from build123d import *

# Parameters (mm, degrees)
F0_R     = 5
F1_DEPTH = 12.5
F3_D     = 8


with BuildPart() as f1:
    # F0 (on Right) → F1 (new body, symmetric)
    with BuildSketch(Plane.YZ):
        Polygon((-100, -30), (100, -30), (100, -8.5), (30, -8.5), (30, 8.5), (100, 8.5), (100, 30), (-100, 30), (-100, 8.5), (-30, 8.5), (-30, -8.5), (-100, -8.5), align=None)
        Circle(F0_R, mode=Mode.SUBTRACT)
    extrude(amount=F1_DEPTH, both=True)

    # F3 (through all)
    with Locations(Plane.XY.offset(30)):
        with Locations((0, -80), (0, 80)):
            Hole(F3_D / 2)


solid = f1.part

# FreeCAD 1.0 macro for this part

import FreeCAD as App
import Part
import Sketcher
from FreeCAD import Vector
Q = App.Units.Quantity


def add_polygon(sketch, points):
    """Adds a closed chain of lines whose ends are joined by coincident constraints."""
    first, n = sketch.GeometryCount, len(points)
    for a, b in zip(points, points[1:] + points[:1]):
        sketch.addGeometry(Part.LineSegment(App.Vector(*a, 0), App.Vector(*b, 0)), False)
    for i in range(n):
        sketch.addConstraint(Sketcher.Constraint("Coincident", first + i, 2, first + (i + 1) % n, 1))

doc = App.newDocument("Part")
params = doc.addObject("Spreadsheet::Sheet", "Params")
for row, (alias, value) in enumerate([
    ("sketch1_diameter", "10 mm"),
    ("sketch1_width", "200 mm"),
    ("sketch1_width2", "70 mm"),
    ("sketch1_height", "17 mm"),
    ("sketch1_height2", "21.5 mm"),
    ("pad1_length", "25 mm"),
    ("sketch2_diameter", "8 mm"),
    ("hole_diameter", "8 mm"),
], start=1):
    params.set(f"A{row}", alias)
    params.set(f"B{row}", "=" + value)
    params.setAlias(f"B{row}", alias)

body = doc.addObject("PartDesign::Body", "Body")

# Sketch on YZ plane
sketch1 = body.newObject("Sketcher::SketchObject", "Sketch")
sketch1.AttachmentSupport = (doc.getObject("YZ_Plane"), [""])
sketch1.MapMode = "FlatFace"
add_polygon(sketch1, [(-100, -30), (100, -30), (100, -8), (30, -8), (30, 8), (100, 8), (100, 30), (-100, 30), (-100, 8), (-30, 8), (-30, -8), (-100, -8)])  # lines 0-11
sketch1.addGeometry(Part.Circle(Vector(0, 0, 0), Vector(0, 0, 1), 5), False)  # 12
sketch1.addConstraint([
    Sketcher.Constraint("Horizontal", 0),
    Sketcher.Constraint("Vertical", 1),
    Sketcher.Constraint("Horizontal", 2),
    Sketcher.Constraint("Vertical", 3),
    Sketcher.Constraint("Horizontal", 4),
    Sketcher.Constraint("Vertical", 5),
    Sketcher.Constraint("Horizontal", 6),
    Sketcher.Constraint("Vertical", 7),
    Sketcher.Constraint("Horizontal", 8),
    Sketcher.Constraint("Vertical", 9),
    Sketcher.Constraint("Horizontal", 10),
    Sketcher.Constraint("Vertical", 11),
    Sketcher.Constraint("Coincident", 12, 3, -1, 1),
    Sketcher.Constraint("Symmetric", 0, 2, 6, 2, -1, 1),
    Sketcher.Constraint("Symmetric", 2, 2, 8, 2, -1, 1),
    Sketcher.Constraint("Symmetric", 4, 2, 10, 2, -1, 1),
    Sketcher.Constraint("Symmetric", 4, 2, 7, 2, -2),
    Sketcher.Constraint("Diameter", 12, Q("10 mm")),
    Sketcher.Constraint("DistanceX", 0, 1, 0, 2, Q("200 mm")),
    Sketcher.Constraint("DistanceX", 2, 2, 2, 1, Q("70 mm")),
    Sketcher.Constraint("DistanceY", 3, 1, 3, 2, Q("17 mm")),
    Sketcher.Constraint("DistanceY", 1, 1, 1, 2, Q("21.5 mm")),
])
sketch1.setExpression("Constraints[29]", "Params.sketch1_diameter")
sketch1.setExpression("Constraints[30]", "Params.sketch1_width")
sketch1.setExpression("Constraints[31]", "Params.sketch1_width2")
sketch1.setExpression("Constraints[32]", "Params.sketch1_height")
sketch1.setExpression("Constraints[33]", "Params.sketch1_height2")
pad1 = body.newObject("PartDesign::Pad", "Pad")
pad1.Profile = sketch1
pad1.setExpression("Length", "Params.pad1_length")
pad1.Midplane = True

# Sketch on XY plane
sketch2 = body.newObject("Sketcher::SketchObject", "Sketch001")
sketch2.AttachmentSupport = (doc.getObject("XY_Plane"), [""])
sketch2.MapMode = "FlatFace"
sketch2.AttachmentOffset = App.Placement(Vector(0, 0, 30), App.Rotation())
sketch2.addGeometry([
    Part.Circle(Vector(0, -80, 0), Vector(0, 0, 1), 4),
    Part.Circle(Vector(0, 80, 0), Vector(0, 0, 1), 4),
], False)
sketch2.addConstraint([
    Sketcher.Constraint("Equal", 0, 1),
    Sketcher.Constraint("Symmetric", 0, 3, 1, 3, -1, 1),
    Sketcher.Constraint("PointOnObject", 0, 3, -2),
    Sketcher.Constraint("Diameter", 0, Q("8 mm")),
    Sketcher.Constraint("DistanceY", 0, 3, -1, 1, Q("80 mm")),
])
sketch2.setExpression("Constraints[3]", "Params.sketch2_diameter")
doc.recompute()
hole = body.newObject("PartDesign::Hole", "Hole")
hole.Profile = sketch2
hole.ThreadType = "None"
hole.setExpression("Diameter", "Params.hole_diameter")
hole.DepthType = "ThroughAll"

doc.recompute()
